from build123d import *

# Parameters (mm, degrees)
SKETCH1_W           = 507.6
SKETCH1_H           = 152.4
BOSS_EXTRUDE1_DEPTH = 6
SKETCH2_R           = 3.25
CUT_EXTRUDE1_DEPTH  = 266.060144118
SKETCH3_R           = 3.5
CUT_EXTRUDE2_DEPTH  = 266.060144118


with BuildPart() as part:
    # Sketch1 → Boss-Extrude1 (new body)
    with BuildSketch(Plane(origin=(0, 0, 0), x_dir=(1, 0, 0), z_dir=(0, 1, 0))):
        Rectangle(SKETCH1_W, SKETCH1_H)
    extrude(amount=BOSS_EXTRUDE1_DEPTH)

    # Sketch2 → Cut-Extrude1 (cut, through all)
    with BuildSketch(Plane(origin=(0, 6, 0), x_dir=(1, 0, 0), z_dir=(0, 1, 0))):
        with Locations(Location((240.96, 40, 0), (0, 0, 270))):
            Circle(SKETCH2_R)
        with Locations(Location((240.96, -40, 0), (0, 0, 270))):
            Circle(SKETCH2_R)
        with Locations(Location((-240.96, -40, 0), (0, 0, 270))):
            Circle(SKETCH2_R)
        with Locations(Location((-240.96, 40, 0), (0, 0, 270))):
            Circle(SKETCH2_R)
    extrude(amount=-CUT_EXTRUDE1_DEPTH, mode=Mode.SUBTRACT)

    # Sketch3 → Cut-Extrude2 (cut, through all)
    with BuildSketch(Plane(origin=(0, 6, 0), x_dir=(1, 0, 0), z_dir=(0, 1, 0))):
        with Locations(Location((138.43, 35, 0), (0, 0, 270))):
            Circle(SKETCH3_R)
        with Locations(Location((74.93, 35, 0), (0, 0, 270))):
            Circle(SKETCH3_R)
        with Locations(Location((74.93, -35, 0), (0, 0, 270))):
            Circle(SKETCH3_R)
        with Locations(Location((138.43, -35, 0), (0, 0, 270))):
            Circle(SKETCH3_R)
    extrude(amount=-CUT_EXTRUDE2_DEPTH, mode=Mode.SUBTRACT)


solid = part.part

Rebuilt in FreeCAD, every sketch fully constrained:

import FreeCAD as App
import Part
import Sketcher

V = App.Vector

doc = App.newDocument("Part")
body = doc.addObject("PartDesign::Body", "Body")

# Sketch on XZ plane
sketch1 = body.newObject("Sketcher::SketchObject", "Sketch")
sketch1.AttachmentSupport = (doc.getObject("XZ_Plane"), [""])
sketch1.MapMode = "FlatFace"
sketch1.addGeometry(Part.LineSegment(V(-253.8, -76.2, 0), V(-253.8, 76.2, 0)), False)
sketch1.addGeometry(Part.LineSegment(V(-253.8, 76.2, 0), V(253.8, 76.2, 0)), False)
sketch1.addGeometry(Part.LineSegment(V(253.8, 76.2, 0), V(253.8, -76.2, 0)), False)
sketch1.addGeometry(Part.LineSegment(V(253.8, -76.2, 0), V(-253.8, -76.2, 0)), False)
sketch1.addConstraint(Sketcher.Constraint("Coincident", 0, 2, 1, 1))
sketch1.addConstraint(Sketcher.Constraint("Coincident", 1, 2, 2, 1))
sketch1.addConstraint(Sketcher.Constraint("Coincident", 2, 2, 3, 1))
sketch1.addConstraint(Sketcher.Constraint("Coincident", 3, 2, 0, 1))
sketch1.addConstraint(Sketcher.Constraint("Vertical", 0))
sketch1.addConstraint(Sketcher.Constraint("Horizontal", 1))
sketch1.addConstraint(Sketcher.Constraint("Vertical", 2))
sketch1.addConstraint(Sketcher.Constraint("Horizontal", 3))
sketch1.addConstraint(Sketcher.Constraint("Symmetric", 0, 2, 2, 2, -1, 1))
sketch1.addConstraint(Sketcher.Constraint("DistanceX", 1, 1, 1, 2, 507.6))
sketch1.addConstraint(Sketcher.Constraint("DistanceY", 0, 1, 0, 2, 152.4))
pad1 = body.newObject("PartDesign::Pad", "Pad")
pad1.Profile = sketch1
pad1.Length = 6
pad1.Reversed = True

# Sketch on XZ plane
sketch2 = body.newObject("Sketcher::SketchObject", "Sketch001")
sketch2.AttachmentSupport = (doc.getObject("XZ_Plane"), [""])
sketch2.MapMode = "FlatFace"
sketch2.AttachmentOffset = App.Placement(V(0, 0, -6), App.Rotation())
sketch2.addGeometry(Part.Circle(V(240.96, -40, 0), V(0, 0, 1), 3.25), False)
sketch2.addGeometry(Part.Circle(V(240.96, 40, 0), V(0, 0, 1), 3.25), False)
sketch2.addGeometry(Part.Circle(V(-240.96, 40, 0), V(0, 0, 1), 3.25), False)
sketch2.addGeometry(Part.Circle(V(-240.96, -40, 0), V(0, 0, 1), 3.25), False)
sketch2.addConstraint(Sketcher.Constraint("Equal", 0, 1))
sketch2.addConstraint(Sketcher.Constraint("Equal", 1, 2))
sketch2.addConstraint(Sketcher.Constraint("Equal", 2, 3))
sketch2.addConstraint(Sketcher.Constraint("Symmetric", 0, 3, 2, 3, -1, 1))
sketch2.addConstraint(Sketcher.Constraint("Symmetric", 1, 3, 3, 3, -1, 1))
sketch2.addConstraint(Sketcher.Constraint("Symmetric", 1, 3, 2, 3, -2))
sketch2.addConstraint(Sketcher.Constraint("Diameter", 0, 6.5))
sketch2.addConstraint(Sketcher.Constraint("DistanceY", 0, 3, -1, 1, 40.0))
sketch2.addConstraint(Sketcher.Constraint("DistanceX", -1, 1, 0, 3, 240.96))
pocket1 = body.newObject("PartDesign::Pocket", "Pocket")
pocket1.Profile = sketch2
pocket1.Type = "ThroughAll"
pocket1.Reversed = True

# Sketch on XZ plane
sketch3 = body.newObject("Sketcher::SketchObject", "Sketch002")
sketch3.AttachmentSupport = (doc.getObject("XZ_Plane"), [""])
sketch3.MapMode = "FlatFace"
sketch3.AttachmentOffset = App.Placement(V(0, 0, -6), App.Rotation())
sketch3.addGeometry(Part.Circle(V(138.43, -35, 0), V(0, 0, 1), 3.5), False)
sketch3.addGeometry(Part.Circle(V(74.93, -35, 0), V(0, 0, 1), 3.5), False)
sketch3.addGeometry(Part.Circle(V(74.93, 35, 0), V(0, 0, 1), 3.5), False)
sketch3.addGeometry(Part.Circle(V(138.43, 35, 0), V(0, 0, 1), 3.5), False)
sketch3.addConstraint(Sketcher.Constraint("Equal", 0, 1))
sketch3.addConstraint(Sketcher.Constraint("Equal", 1, 2))
sketch3.addConstraint(Sketcher.Constraint("Equal", 2, 3))
sketch3.addConstraint(Sketcher.Constraint("Symmetric", 1, 3, 2, 3, -1))
sketch3.addConstraint(Sketcher.Constraint("Symmetric", 0, 3, 3, 3, -1))
sketch3.addConstraint(Sketcher.Constraint("Horizontal", 0, 3, 1, 3))
sketch3.addConstraint(Sketcher.Constraint("Diameter", 0, 7.0))
sketch3.addConstraint(Sketcher.Constraint("DistanceY", 0, 3, -1, 1, 35.0))
sketch3.addConstraint(Sketcher.Constraint("DistanceX", 1, 3, 0, 3, 63.5))
sketch3.addConstraint(Sketcher.Constraint("DistanceX", -1, 1, 0, 3, 138.43))
pocket2 = body.newObject("PartDesign::Pocket", "Pocket001")
pocket2.Profile = sketch3
pocket2.Type = "ThroughAll"
pocket2.Reversed = True

doc.recompute()
